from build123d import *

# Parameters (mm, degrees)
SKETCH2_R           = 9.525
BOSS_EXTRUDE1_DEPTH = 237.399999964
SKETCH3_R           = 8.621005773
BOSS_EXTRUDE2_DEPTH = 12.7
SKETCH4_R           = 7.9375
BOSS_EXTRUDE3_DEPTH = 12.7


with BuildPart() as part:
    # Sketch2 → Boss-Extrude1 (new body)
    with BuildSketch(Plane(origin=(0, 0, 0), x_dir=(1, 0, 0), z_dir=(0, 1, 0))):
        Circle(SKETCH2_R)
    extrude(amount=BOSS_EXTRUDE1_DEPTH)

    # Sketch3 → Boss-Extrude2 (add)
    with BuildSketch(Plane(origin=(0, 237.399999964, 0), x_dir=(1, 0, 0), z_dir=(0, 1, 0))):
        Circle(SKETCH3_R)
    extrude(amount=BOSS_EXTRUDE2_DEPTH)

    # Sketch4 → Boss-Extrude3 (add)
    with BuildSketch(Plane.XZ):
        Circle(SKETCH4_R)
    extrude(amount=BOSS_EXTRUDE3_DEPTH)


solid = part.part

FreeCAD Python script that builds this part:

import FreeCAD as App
import Part
import Sketcher

V = App.Vector
Q = App.Units.Quantity

doc = App.newDocument("Part")
params = doc.addObject("Spreadsheet::Sheet", "Params")
for row, (alias, value) in enumerate([
    ("sketch1_diameter", "0.75 in"),
    ("pad1_length", "237.4 mm"),
    ("pad2_length", "0.5 in"),
    ("sketch3_diameter", "0.625 in"),
    ("pad3_length", "0.5 in"),
], start=1):
    params.set(f"A{row}", alias)
    params.set(f"B{row}", "=" + value)
    params.setAlias(f"B{row}", alias)

body = doc.addObject("PartDesign::Body", "Body")

# Sketch on XZ plane
sketch1 = body.newObject("Sketcher::SketchObject", "Sketch")
sketch1.AttachmentSupport = (doc.getObject("XZ_Plane"), [""])
sketch1.MapMode = "FlatFace"
sketch1.addGeometry(Part.Circle(V(0, 0, 0), V(0, 0, 1), 9.525), False)
sketch1.addConstraint([
    Sketcher.Constraint("Coincident", 0, 3, -1, 1),
    Sketcher.Constraint("Diameter", 0, Q("0.75 in")),
])
sketch1.setExpression("Constraints[1]", "Params.sketch1_diameter")
pad1 = body.newObject("PartDesign::Pad", "Pad")
pad1.Profile = sketch1
pad1.setExpression("Length", "Params.pad1_length")
pad1.Reversed = True

# Sketch on XZ plane
sketch2 = body.newObject("Sketcher::SketchObject", "Sketch001")
sketch2.AttachmentSupport = (doc.getObject("XZ_Plane"), [""])
sketch2.MapMode = "FlatFace"
sketch2.AttachmentOffset = App.Placement(V(0, 0, -237.4), App.Rotation())
sketch2.addGeometry(Part.Circle(V(0, 0, 0), V(0, 0, 1), 8.621006), False)
sketch2.addConstraint([
    Sketcher.Constraint("Coincident", 0, 3, -1, 1),
    Sketcher.Constraint("Diameter", 0, Q("17.242012 mm")),
])
pad2 = body.newObject("PartDesign::Pad", "Pad001")
pad2.Profile = sketch2
pad2.setExpression("Length", "Params.pad2_length")
pad2.Reversed = True

# Sketch on XZ plane
sketch3 = body.newObject("Sketcher::SketchObject", "Sketch002")
sketch3.AttachmentSupport = (doc.getObject("XZ_Plane"), [""])
sketch3.MapMode = "FlatFace"
sketch3.addGeometry(Part.Circle(V(0, 0, 0), V(0, 0, 1), 7.9375), False)
sketch3.addConstraint([
    Sketcher.Constraint("Coincident", 0, 3, -1, 1),
    Sketcher.Constraint("Diameter", 0, Q("0.625 in")),
])
sketch3.setExpression("Constraints[1]", "Params.sketch3_diameter")
pad3 = body.newObject("PartDesign::Pad", "Pad002")
pad3.Profile = sketch3
pad3.setExpression("Length", "Params.pad3_length")

doc.recompute()
